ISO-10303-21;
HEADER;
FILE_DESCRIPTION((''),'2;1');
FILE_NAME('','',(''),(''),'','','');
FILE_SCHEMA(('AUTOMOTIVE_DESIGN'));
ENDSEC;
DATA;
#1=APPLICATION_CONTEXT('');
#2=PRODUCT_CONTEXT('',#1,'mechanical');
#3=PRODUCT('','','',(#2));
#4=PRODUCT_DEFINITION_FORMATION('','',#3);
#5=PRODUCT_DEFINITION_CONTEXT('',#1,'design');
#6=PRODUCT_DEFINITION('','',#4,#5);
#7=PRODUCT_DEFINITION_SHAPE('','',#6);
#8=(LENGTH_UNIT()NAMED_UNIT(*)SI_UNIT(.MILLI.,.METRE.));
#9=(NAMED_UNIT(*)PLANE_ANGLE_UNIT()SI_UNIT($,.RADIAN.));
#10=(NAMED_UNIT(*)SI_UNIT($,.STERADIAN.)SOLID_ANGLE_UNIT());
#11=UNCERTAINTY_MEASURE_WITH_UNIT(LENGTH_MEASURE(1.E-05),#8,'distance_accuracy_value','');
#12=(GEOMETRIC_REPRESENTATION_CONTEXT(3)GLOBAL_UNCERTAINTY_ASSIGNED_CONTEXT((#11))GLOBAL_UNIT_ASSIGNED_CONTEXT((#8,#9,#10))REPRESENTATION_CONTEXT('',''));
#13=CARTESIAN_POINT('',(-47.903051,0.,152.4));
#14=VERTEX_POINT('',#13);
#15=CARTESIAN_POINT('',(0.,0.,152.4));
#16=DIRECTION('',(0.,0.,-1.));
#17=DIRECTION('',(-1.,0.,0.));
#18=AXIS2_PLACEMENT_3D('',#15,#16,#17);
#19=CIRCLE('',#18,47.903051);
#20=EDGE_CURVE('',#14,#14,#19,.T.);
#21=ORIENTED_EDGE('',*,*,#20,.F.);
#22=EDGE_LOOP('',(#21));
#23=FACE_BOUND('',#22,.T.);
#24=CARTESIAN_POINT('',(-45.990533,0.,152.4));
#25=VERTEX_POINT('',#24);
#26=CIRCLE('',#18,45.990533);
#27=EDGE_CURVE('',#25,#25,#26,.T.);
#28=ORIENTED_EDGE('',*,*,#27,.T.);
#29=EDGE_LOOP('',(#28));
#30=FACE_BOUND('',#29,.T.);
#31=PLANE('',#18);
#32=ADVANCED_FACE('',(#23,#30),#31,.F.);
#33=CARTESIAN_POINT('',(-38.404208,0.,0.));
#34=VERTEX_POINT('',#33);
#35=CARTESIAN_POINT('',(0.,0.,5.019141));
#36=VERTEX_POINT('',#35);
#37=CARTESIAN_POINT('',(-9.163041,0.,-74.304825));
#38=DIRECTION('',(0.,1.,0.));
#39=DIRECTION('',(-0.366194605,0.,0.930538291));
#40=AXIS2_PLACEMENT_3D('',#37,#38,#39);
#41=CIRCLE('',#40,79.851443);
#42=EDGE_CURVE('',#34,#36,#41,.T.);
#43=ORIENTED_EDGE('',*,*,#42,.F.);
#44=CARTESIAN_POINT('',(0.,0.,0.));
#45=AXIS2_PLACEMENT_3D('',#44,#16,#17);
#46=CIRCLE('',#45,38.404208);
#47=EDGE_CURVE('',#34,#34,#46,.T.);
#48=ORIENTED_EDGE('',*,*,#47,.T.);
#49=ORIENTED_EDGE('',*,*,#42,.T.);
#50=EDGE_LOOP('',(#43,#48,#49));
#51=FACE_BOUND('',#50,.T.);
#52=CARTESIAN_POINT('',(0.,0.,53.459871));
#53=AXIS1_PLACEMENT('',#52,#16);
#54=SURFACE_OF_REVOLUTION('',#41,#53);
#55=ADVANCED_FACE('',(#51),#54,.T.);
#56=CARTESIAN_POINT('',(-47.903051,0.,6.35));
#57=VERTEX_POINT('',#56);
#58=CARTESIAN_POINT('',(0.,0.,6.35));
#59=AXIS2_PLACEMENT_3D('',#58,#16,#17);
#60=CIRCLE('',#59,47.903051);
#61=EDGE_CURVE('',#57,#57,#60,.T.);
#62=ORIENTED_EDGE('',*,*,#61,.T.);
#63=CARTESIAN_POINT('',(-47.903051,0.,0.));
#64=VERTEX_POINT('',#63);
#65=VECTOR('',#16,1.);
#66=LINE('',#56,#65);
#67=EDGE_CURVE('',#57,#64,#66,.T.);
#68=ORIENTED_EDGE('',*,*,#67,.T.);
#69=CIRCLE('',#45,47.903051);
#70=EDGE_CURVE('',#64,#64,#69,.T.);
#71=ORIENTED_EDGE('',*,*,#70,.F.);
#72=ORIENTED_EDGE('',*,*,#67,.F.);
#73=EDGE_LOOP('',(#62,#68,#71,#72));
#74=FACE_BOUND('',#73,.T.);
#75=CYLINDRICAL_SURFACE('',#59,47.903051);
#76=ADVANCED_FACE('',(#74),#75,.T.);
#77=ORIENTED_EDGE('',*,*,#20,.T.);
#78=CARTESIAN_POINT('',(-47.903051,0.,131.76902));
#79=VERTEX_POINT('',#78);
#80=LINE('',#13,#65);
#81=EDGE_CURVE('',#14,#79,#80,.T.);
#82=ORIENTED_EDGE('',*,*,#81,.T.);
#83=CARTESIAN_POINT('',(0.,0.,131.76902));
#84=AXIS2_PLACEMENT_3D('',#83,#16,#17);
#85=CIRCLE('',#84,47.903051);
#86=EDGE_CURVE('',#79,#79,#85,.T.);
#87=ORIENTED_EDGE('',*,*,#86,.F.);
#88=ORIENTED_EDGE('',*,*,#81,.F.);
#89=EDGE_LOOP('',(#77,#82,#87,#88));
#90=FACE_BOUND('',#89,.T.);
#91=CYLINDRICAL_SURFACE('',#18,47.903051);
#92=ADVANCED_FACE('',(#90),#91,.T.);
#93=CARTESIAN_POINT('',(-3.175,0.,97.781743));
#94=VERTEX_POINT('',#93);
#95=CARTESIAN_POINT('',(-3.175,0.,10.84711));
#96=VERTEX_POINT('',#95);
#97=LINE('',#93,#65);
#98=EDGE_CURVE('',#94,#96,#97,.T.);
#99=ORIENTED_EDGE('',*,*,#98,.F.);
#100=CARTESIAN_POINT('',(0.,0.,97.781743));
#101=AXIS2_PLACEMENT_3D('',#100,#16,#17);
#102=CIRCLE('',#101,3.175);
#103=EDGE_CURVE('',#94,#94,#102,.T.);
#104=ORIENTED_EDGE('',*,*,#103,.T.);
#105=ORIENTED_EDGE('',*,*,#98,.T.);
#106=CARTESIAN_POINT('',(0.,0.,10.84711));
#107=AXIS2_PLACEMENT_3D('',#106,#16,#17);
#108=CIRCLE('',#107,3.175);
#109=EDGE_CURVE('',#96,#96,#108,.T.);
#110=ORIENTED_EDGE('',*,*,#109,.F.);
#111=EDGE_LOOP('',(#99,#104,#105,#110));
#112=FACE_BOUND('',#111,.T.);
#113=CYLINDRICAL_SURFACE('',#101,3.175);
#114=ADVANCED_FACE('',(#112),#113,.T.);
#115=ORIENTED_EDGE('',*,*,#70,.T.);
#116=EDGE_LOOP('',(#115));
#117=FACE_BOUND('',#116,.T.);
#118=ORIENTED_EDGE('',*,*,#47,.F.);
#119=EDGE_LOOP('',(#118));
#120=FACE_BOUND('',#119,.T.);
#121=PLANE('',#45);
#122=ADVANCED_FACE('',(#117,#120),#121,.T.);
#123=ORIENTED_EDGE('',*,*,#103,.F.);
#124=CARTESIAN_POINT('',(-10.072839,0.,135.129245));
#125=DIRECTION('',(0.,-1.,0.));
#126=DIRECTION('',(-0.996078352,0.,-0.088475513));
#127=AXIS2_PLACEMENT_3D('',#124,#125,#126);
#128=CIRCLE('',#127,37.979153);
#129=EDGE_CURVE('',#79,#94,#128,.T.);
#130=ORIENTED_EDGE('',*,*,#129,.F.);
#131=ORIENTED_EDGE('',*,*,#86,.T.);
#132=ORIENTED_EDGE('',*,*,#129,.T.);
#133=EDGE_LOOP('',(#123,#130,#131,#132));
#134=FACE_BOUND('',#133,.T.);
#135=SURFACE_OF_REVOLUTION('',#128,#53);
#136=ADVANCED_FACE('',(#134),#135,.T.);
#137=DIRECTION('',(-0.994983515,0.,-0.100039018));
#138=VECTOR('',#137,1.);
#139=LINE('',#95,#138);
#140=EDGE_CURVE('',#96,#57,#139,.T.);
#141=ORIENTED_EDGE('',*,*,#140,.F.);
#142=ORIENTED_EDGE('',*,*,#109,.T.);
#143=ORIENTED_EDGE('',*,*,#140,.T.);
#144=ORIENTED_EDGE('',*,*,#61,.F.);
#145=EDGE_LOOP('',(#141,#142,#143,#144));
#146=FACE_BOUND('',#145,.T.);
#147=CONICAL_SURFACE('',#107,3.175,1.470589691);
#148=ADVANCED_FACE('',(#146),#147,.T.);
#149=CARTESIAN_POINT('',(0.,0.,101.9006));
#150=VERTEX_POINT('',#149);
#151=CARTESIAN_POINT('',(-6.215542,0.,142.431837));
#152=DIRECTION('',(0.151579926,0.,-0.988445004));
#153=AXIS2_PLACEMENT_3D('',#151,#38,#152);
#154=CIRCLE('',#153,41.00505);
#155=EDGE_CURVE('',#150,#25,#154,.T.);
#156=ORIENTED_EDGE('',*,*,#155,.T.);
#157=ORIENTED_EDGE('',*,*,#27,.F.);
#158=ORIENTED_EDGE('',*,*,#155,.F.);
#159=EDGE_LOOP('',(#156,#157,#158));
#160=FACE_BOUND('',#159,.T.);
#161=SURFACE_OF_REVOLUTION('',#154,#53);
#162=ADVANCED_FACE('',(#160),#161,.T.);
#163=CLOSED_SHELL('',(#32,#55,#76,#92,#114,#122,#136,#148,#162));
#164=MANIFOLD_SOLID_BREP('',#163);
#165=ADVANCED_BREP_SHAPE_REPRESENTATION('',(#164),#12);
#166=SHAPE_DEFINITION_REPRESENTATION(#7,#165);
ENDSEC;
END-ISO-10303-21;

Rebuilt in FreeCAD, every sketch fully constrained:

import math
import FreeCAD as App
import Part
import Sketcher
from FreeCAD import Vector
Q = App.Units.Quantity

doc = App.newDocument("Part")
body = doc.addObject("PartDesign::Body", "Body")

# Sketch on XZ plane
sketch1 = body.newObject("Sketcher::SketchObject", "Sketch")
sketch1.AttachmentSupport = (doc.getObject("XZ_Plane"), [""])
sketch1.MapMode = "FlatFace"
sketch1.addGeometry(Part.LineSegment(Vector(-47.9, 0, 0), Vector(-38.4, 0, 0)), False)
sketch1.addGeometry(Part.ArcOfCircle(Part.Circle(Vector(-9.2, -74.3, 0), Vector(0, 0, 1), 79.9), math.radians(83), math.radians(111)), False)
sketch1.addGeometry(Part.LineSegment(Vector(0, 5, 0), Vector(0, 101.9, 0)), False)
sketch1.addGeometry(Part.ArcOfCircle(Part.Circle(Vector(-6.2, 142.4, 0), Vector(0, 0, 1), 41), math.radians(166), math.radians(279)), False)
sketch1.addGeometry(Part.LineSegment(Vector(-46, 152.4, 0), Vector(-47.9, 152.4, 0)), False)
sketch1.addGeometry(Part.LineSegment(Vector(-47.9, 152.4, 0), Vector(-47.9, 131.8, 0)), False)
sketch1.addGeometry(Part.ArcOfCircle(Part.Circle(Vector(-10.1, 135.1, 0), Vector(0, 0, 1), 38), math.radians(-175), math.radians(-80)), False)
sketch1.addGeometry(Part.LineSegment(Vector(-3.2, 97.8, 0), Vector(-3.2, 10.8, 0)), False)
sketch1.addGeometry(Part.LineSegment(Vector(-3.2, 10.8, 0), Vector(-47.9, 6.3, 0)), False)
sketch1.addGeometry(Part.LineSegment(Vector(-47.9, 6.3, 0), Vector(-47.9, 0, 0)), False)
sketch1.addConstraint(Sketcher.Constraint("Coincident", 0, 2, 1, 2))
sketch1.addConstraint(Sketcher.Constraint("Coincident", 1, 1, 2, 1))
sketch1.addConstraint(Sketcher.Constraint("Coincident", 2, 2, 3, 2))
sketch1.addConstraint(Sketcher.Constraint("Coincident", 3, 1, 4, 1))
sketch1.addConstraint(Sketcher.Constraint("Coincident", 4, 2, 5, 1))
sketch1.addConstraint(Sketcher.Constraint("Coincident", 5, 2, 6, 1))
sketch1.addConstraint(Sketcher.Constraint("Coincident", 6, 2, 7, 1))
sketch1.addConstraint(Sketcher.Constraint("Coincident", 7, 2, 8, 1))
sketch1.addConstraint(Sketcher.Constraint("Coincident", 8, 2, 9, 1))
sketch1.addConstraint(Sketcher.Constraint("Coincident", 9, 2, 0, 1))
sketch1.addConstraint(Sketcher.Constraint("Horizontal", 0))
sketch1.addConstraint(Sketcher.Constraint("Vertical", 2))
sketch1.addConstraint(Sketcher.Constraint("Horizontal", 4))
sketch1.addConstraint(Sketcher.Constraint("Vertical", 5))
sketch1.addConstraint(Sketcher.Constraint("Vertical", 7))
sketch1.addConstraint(Sketcher.Constraint("Vertical", 9))
sketch1.addConstraint(Sketcher.Constraint("PointOnObject", 0, 2, -1))
sketch1.addConstraint(Sketcher.Constraint("PointOnObject", 1, 1, -2))
sketch1.addConstraint(Sketcher.Constraint("Vertical", 5, 2, 8, 2))
sketch1.addConstraint(Sketcher.Constraint("DistanceY", -1, 1, 3, 1, Q("6 in")))
sketch1.addConstraint(Sketcher.Constraint("DistanceY", 9, 2, 9, 1, Q("0.25 in")))
sketch1.addConstraint(Sketcher.Constraint("DistanceX", 6, 2, -1, 1, Q("0.125 in")))
sketch1.addConstraint(Sketcher.Constraint("Radius", 3, 41.00505))
sketch1.addConstraint(Sketcher.Constraint("Radius", 1, 79.851443))
sketch1.addConstraint(Sketcher.Constraint("Radius", 6, 37.979153))
sketch1.addConstraint(Sketcher.Constraint("DistanceY", 2, 1, 2, 2, 96.881459))
sketch1.addConstraint(Sketcher.Constraint("DistanceY", 5, 2, 5, 1, 20.63098))
sketch1.addConstraint(Sketcher.Constraint("DistanceY", -1, 1, 2, 2, 101.9006))
sketch1.addConstraint(Sketcher.Constraint("DistanceX", 1, 3, 3, 3, 2.947498))
sketch1.addConstraint(Sketcher.Constraint("DistanceX", 6, 3, 1, 3, 0.909798))
sketch1.addConstraint(Sketcher.Constraint("Distance", 8, 44.95356))
sketch1.addConstraint(Sketcher.Constraint("DistanceX", 0, 1, 0, 2, 9.498843))
sketch1.addConstraint(Sketcher.Constraint("DistanceX", 4, 2, 4, 1, 1.912518))
revolution = body.newObject("PartDesign::Revolution", "Revolution")
revolution.Profile = sketch1
revolution.ReferenceAxis = (sketch1, ["V_Axis"])
revolution.Angle = 360

doc.recompute()
